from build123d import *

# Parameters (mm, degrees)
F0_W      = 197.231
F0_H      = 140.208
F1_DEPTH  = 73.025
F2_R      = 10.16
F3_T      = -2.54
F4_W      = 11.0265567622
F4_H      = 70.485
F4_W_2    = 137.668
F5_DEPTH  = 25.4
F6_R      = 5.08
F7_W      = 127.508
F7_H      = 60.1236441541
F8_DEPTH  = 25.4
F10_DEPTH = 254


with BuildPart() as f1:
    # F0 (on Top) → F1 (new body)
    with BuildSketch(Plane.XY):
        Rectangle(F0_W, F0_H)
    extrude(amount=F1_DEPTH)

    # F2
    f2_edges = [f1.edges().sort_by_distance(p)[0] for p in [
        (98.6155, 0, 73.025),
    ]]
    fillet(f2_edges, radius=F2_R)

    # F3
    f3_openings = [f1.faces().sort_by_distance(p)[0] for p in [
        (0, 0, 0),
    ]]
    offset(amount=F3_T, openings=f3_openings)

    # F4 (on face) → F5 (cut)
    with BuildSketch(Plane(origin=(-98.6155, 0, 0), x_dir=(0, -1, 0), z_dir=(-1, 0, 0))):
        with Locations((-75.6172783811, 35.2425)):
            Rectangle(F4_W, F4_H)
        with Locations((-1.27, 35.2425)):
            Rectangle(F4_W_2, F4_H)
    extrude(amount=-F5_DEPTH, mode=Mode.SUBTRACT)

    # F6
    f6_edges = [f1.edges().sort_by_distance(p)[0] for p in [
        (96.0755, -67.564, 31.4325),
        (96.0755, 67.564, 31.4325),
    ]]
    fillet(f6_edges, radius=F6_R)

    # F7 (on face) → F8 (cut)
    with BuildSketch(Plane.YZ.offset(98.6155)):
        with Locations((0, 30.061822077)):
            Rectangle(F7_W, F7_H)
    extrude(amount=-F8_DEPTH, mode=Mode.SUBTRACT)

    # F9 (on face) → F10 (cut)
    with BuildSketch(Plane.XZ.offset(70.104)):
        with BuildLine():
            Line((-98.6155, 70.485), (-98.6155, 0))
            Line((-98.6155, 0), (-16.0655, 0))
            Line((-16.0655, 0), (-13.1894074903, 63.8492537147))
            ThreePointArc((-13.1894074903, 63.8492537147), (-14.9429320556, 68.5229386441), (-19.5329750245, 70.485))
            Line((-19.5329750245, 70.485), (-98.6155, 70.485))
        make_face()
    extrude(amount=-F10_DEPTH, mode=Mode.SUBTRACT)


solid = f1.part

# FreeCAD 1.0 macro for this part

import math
import FreeCAD as App
import Part
import Sketcher
from FreeCAD import Vector
Q = App.Units.Quantity


def edges_at(feature, points):
    """Names of the edges that pass closest to the given points."""
    edges = feature.Shape.Edges
    near = lambda p: min(range(len(edges)), key=lambda i: edges[i].distToShape(Part.Vertex(*p))[0])
    return sorted({f"Edge{near(p) + 1}" for p in points})


def faces_at(feature, points):
    """Names of the faces that lie closest to the given points."""
    faces = feature.Shape.Faces
    near = lambda p: min(range(len(faces)), key=lambda i: faces[i].distToShape(Part.Vertex(*p))[0])
    return sorted({f"Face{near(p) + 1}" for p in points})


def add_polygon(sketch, points):
    """Adds a closed chain of lines whose ends are joined by coincident constraints."""
    first, n = sketch.GeometryCount, len(points)
    for a, b in zip(points, points[1:] + points[:1]):
        sketch.addGeometry(Part.LineSegment(App.Vector(*a, 0), App.Vector(*b, 0)), False)
    for i in range(n):
        sketch.addConstraint(Sketcher.Constraint("Coincident", first + i, 2, first + (i + 1) % n, 1))

doc = App.newDocument("Part")
params = doc.addObject("Spreadsheet::Sheet", "Params")
for row, (alias, value) in enumerate([
    ("sketch1_height", "5.52 in"),
    ("sketch1_width", "7.765 in"),
    ("pad1_length", "2.875 in"),
    ("fillet_radius", "0.4 in"),
    ("thickness_wall", "0.1 in"),
    ("sketch2_height", "2.775 in"),
    ("pocket1_length", "1 in"),
    ("fillet2_radius", "0.2 in"),
    ("sketch3_width", "5.02 in"),
    ("pocket2_length", "1 in"),
    ("sketch4_radius", "0.25 in"),
    ("sketch4_width", "3.25 in"),
    ("sketch4_height", "2.775 in"),
    ("pocket3_length", "10 in"),
], start=1):
    params.set(f"A{row}", alias)
    params.set(f"B{row}", "=" + value)
    params.setAlias(f"B{row}", alias)

body = doc.addObject("PartDesign::Body", "Body")

# Sketch on XY plane
sketch1 = doc.addObject("Sketcher::SketchObject", "Sketch")
body.addObject(sketch1)
sketch1.AttachmentSupport = (doc.XY_Plane, [""])
sketch1.MapMode = "FlatFace"
add_polygon(sketch1, [(-99, 70), (-99, -70), (99, -70), (99, 70)])  # lines 0-3
sketch1.addConstraint([
    Sketcher.Constraint("Vertical", 0),
    Sketcher.Constraint("Horizontal", 1),
    Sketcher.Constraint("Vertical", 2),
    Sketcher.Constraint("Horizontal", 3),
    Sketcher.Constraint("Symmetric", 0, 2, 2, 2, -1, 1),
    Sketcher.Constraint("DistanceY", 0, 2, 0, 1, Q("5.52 in")),
    Sketcher.Constraint("DistanceX", 1, 1, 1, 2, Q("7.765 in")),
])
sketch1.setExpression("Constraints[9]", "Params.sketch1_height")
sketch1.setExpression("Constraints[10]", "Params.sketch1_width")
pad1 = doc.addObject("PartDesign::Pad", "Pad")
body.addObject(pad1)
pad1.Profile = sketch1
pad1.setExpression("Length", "Params.pad1_length")
doc.recompute()

fillet = doc.addObject("PartDesign::Fillet", "Fillet")
body.addObject(fillet)
fillet.Base = (pad1, edges_at(pad1, [(98.615, 0, 73.025)]))
fillet.setExpression("Radius", "Params.fillet_radius")
doc.recompute()

thickness = doc.addObject("PartDesign::Thickness", "Thickness")
body.addObject(thickness)
thickness.Base = (fillet, faces_at(fillet, [(0, 0, 0)]))
thickness.setExpression("Value", "Params.thickness_wall")
thickness.Reversed = True
thickness.Join = "Arc"

# Sketch on YZ plane
sketch2 = doc.addObject("Sketcher::SketchObject", "Sketch001")
body.addObject(sketch2)
sketch2.AttachmentSupport = (doc.YZ_Plane, [""])
sketch2.MapMode = "FlatFace"
sketch2.AttachmentOffset = App.Placement(Vector(0, 0, -3.8825 * 25.4), App.Rotation())
add_polygon(sketch2, [(81, 70), (81, 0), (-68, 0), (-68, 70)])  # lines 0-3
sketch2.addConstraint([
    Sketcher.Constraint("Vertical", 0),
    Sketcher.Constraint("Horizontal", 1),
    Sketcher.Constraint("Vertical", 2),
    Sketcher.Constraint("Horizontal", 3),
    Sketcher.Constraint("PointOnObject", 0, 2, -1),
    Sketcher.Constraint("DistanceY", 0, 2, 0, 1, Q("2.775 in")),
    Sketcher.Constraint("DistanceX", 1, 2, -1, 1, Q("2.66 in")),
    Sketcher.Constraint("DistanceX", 1, 2, 1, 1, 148.694557),
])
sketch2.setExpression("Constraints[9]", "Params.sketch2_height")
pocket1 = doc.addObject("PartDesign::Pocket", "Pocket")
body.addObject(pocket1)
pocket1.Profile = sketch2
pocket1.setExpression("Length", "Params.pocket1_length")
pocket1.Reversed = True
doc.recompute()

fillet2 = doc.addObject("PartDesign::Fillet", "Fillet001")
body.addObject(fillet2)
fillet2.Base = (pocket1, edges_at(pocket1, [(96.076, -67.564, 31.433), (96.076, 67.564, 31.433)]))
fillet2.setExpression("Radius", "Params.fillet2_radius")

# Sketch on YZ plane
sketch3 = doc.addObject("Sketcher::SketchObject", "Sketch002")
body.addObject(sketch3)
sketch3.AttachmentSupport = (doc.YZ_Plane, [""])
sketch3.MapMode = "FlatFace"
sketch3.AttachmentOffset = App.Placement(Vector(0, 0, 3.8825 * 25.4), App.Rotation())
add_polygon(sketch3, [(-64, 60), (-64, 0), (64, 0), (64, 60)])  # lines 0-3
sketch3.addConstraint([
    Sketcher.Constraint("Vertical", 0),
    Sketcher.Constraint("Horizontal", 1),
    Sketcher.Constraint("Vertical", 2),
    Sketcher.Constraint("Horizontal", 3),
    Sketcher.Constraint("Symmetric", 0, 2, 1, 2, -1, 1),
    Sketcher.Constraint("DistanceX", 1, 1, 1, 2, Q("5.02 in")),
    Sketcher.Constraint("DistanceY", 0, 2, 0, 1, 60.123644),
])
sketch3.setExpression("Constraints[9]", "Params.sketch3_width")
pocket2 = doc.addObject("PartDesign::Pocket", "Pocket001")
body.addObject(pocket2)
pocket2.Profile = sketch3
pocket2.setExpression("Length", "Params.pocket2_length")

# Sketch on XZ plane
sketch4 = doc.addObject("Sketcher::SketchObject", "Sketch003")
body.addObject(sketch4)
sketch4.AttachmentSupport = (doc.XZ_Plane, [""])
sketch4.MapMode = "FlatFace"
sketch4.AttachmentOffset = App.Placement(Vector(0, 0, 2.76 * 25.4), App.Rotation())
sketch4.addGeometry([
    Part.LineSegment(Vector(-99, 70, 0), Vector(-99, 0, 0)),  # 0
    Part.LineSegment(Vector(-99, 0, 0), Vector(-16, 0, 0)),  # 1
    Part.LineSegment(Vector(-16, 0, 0), Vector(-13, 64, 0)),  # 2
    Part.ArcOfCircle(Part.Circle(Vector(-20, 64, 0), Vector(0, 0, 1), 6), math.radians(-3), math.radians(90)),  # 3
    Part.LineSegment(Vector(-20, 70, 0), Vector(-99, 70, 0)),  # 4
], False)
sketch4.addConstraint([
    Sketcher.Constraint("Coincident", 0, 2, 1, 1),
    Sketcher.Constraint("Coincident", 1, 2, 2, 1),
    Sketcher.Constraint("Tangent", 2, 2, 3, 1),
    Sketcher.Constraint("Tangent", 3, 2, 4, 1),
    Sketcher.Constraint("Coincident", 4, 2, 0, 1),
    Sketcher.Constraint("Vertical", 0),
    Sketcher.Constraint("Horizontal", 1),
    Sketcher.Constraint("Horizontal", 4),
    Sketcher.Constraint("PointOnObject", 0, 2, -1),
    Sketcher.Constraint("Radius", 3, Q("0.25 in")),
    Sketcher.Constraint("DistanceX", 1, 1, 1, 2, Q("3.25 in")),
    Sketcher.Constraint("DistanceY", 0, 2, 0, 1, Q("2.775 in")),
    Sketcher.Constraint("DistanceX", 0, 2, -1, 1, Q("3.8825 in")),
    Sketcher.Constraint("DistanceX", 4, 2, 4, 1, 79.082525),
])
sketch4.setExpression("Constraints[9]", "Params.sketch4_radius")
sketch4.setExpression("Constraints[10]", "Params.sketch4_width")
sketch4.setExpression("Constraints[11]", "Params.sketch4_height")
pocket3 = doc.addObject("PartDesign::Pocket", "Pocket002")
body.addObject(pocket3)
pocket3.Profile = sketch4
pocket3.setExpression("Length", "Params.pocket3_length")

doc.recompute()
